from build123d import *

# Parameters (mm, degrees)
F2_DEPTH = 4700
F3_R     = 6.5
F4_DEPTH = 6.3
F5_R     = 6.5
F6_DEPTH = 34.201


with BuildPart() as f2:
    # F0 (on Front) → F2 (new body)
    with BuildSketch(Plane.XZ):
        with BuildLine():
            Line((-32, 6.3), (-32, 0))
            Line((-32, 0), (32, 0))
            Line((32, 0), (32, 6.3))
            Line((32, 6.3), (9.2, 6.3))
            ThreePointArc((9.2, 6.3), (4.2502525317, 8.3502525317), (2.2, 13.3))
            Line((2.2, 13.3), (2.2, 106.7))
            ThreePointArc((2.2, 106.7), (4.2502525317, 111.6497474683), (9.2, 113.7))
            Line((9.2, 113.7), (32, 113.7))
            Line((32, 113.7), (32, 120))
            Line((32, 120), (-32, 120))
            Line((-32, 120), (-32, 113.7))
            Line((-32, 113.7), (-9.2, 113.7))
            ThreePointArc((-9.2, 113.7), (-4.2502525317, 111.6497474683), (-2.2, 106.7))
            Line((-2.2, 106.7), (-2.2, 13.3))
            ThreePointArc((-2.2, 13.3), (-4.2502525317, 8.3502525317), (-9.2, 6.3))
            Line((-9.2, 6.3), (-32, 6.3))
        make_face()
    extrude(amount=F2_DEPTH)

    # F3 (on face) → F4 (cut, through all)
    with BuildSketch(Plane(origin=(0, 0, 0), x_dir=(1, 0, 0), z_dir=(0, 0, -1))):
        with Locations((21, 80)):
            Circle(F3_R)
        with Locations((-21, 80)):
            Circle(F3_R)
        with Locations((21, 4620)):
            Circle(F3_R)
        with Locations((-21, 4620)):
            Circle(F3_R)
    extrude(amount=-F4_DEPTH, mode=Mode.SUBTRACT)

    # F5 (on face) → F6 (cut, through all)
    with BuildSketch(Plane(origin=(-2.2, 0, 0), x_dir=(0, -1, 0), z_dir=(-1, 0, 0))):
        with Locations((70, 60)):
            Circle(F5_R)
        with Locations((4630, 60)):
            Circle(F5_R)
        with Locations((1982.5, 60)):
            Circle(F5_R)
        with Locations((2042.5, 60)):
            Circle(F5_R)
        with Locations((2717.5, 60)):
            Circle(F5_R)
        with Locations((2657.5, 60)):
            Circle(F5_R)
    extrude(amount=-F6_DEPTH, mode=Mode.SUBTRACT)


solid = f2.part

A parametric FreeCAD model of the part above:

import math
import FreeCAD as App
import Part
import Sketcher

doc = App.newDocument("Part")
params = doc.addObject("Spreadsheet::Sheet", "Params")
for row, (alias, value) in enumerate([
    ("sketch1_radius", "7 mm"),
    ("sketch1_width", "64 mm"),
    ("sketch1_width2", "22.8 mm"),
    ("sketch1_height", "6.3 mm"),
    ("sketch1_height2", "93.4 mm"),
    ("pad1_length", "4700 mm"),
    ("sketch2_diameter", "13 mm"),
    ("pocket1_length", "6.3 mm"),
    ("sketch3_diameter", "13 mm"),
], start=1):
    params.set(f"A{row}", alias)
    params.set(f"B{row}", "=" + value)
    params.setAlias(f"B{row}", alias)

body = doc.addObject("PartDesign::Body", "Body")

# Sketch on XZ plane
sketch1 = body.newObject("Sketcher::SketchObject", "Sketch")
sketch1.AttachmentSupport = (doc.getObject("XZ_Plane"), [""])
sketch1.MapMode = "FlatFace"
sketch1.addGeometry([
    Part.LineSegment(App.Vector(-32, 6, 0), App.Vector(-32, 0, 0)),  # 0
    Part.LineSegment(App.Vector(-32, 0, 0), App.Vector(32, 0, 0)),  # 1
    Part.LineSegment(App.Vector(32, 0, 0), App.Vector(32, 6, 0)),  # 2
    Part.LineSegment(App.Vector(32, 6, 0), App.Vector(9, 6, 0)),  # 3
    Part.ArcOfCircle(Part.Circle(App.Vector(9, 13, 0), App.Vector(0, 0, 1), 7), math.radians(180), math.radians(270)),  # 4
    Part.LineSegment(App.Vector(2, 13, 0), App.Vector(2, 107, 0)),  # 5
    Part.ArcOfCircle(Part.Circle(App.Vector(9, 107, 0), App.Vector(0, 0, 1), 7), math.radians(90), math.radians(180)),  # 6
    Part.LineSegment(App.Vector(9, 114, 0), App.Vector(32, 114, 0)),  # 7
    Part.LineSegment(App.Vector(32, 114, 0), App.Vector(32, 120, 0)),  # 8
    Part.LineSegment(App.Vector(32, 120, 0), App.Vector(-32, 120, 0)),  # 9
    Part.LineSegment(App.Vector(-32, 120, 0), App.Vector(-32, 114, 0)),  # 10
    Part.LineSegment(App.Vector(-32, 114, 0), App.Vector(-9, 114, 0)),  # 11
    Part.ArcOfCircle(Part.Circle(App.Vector(-9, 107, 0), App.Vector(0, 0, 1), 7), math.radians(0), math.radians(90)),  # 12
    Part.LineSegment(App.Vector(-2, 107, 0), App.Vector(-2, 13, 0)),  # 13
    Part.ArcOfCircle(Part.Circle(App.Vector(-9, 13, 0), App.Vector(0, 0, 1), 7), math.radians(-90), math.radians(0)),  # 14
    Part.LineSegment(App.Vector(-9, 6, 0), App.Vector(-32, 6, 0)),  # 15
], False)
sketch1.addConstraint([
    Sketcher.Constraint("Coincident", 0, 2, 1, 1),
    Sketcher.Constraint("Coincident", 1, 2, 2, 1),
    Sketcher.Constraint("Coincident", 2, 2, 3, 1),
    Sketcher.Constraint("Tangent", 3, 2, 4, 2),
    Sketcher.Constraint("Tangent", 4, 1, 5, 1),
    Sketcher.Constraint("Tangent", 5, 2, 6, 2),
    Sketcher.Constraint("Tangent", 6, 1, 7, 1),
    Sketcher.Constraint("Coincident", 7, 2, 8, 1),
    Sketcher.Constraint("Coincident", 8, 2, 9, 1),
    Sketcher.Constraint("Coincident", 9, 2, 10, 1),
    Sketcher.Constraint("Coincident", 10, 2, 11, 1),
    Sketcher.Constraint("Tangent", 11, 2, 12, 2),
    Sketcher.Constraint("Tangent", 12, 1, 13, 1),
    Sketcher.Constraint("Tangent", 13, 2, 14, 2),
    Sketcher.Constraint("Tangent", 14, 1, 15, 1),
    Sketcher.Constraint("Coincident", 15, 2, 0, 1),
    Sketcher.Constraint("Vertical", 0),
    Sketcher.Constraint("Horizontal", 1),
    Sketcher.Constraint("Vertical", 2),
    Sketcher.Constraint("Horizontal", 3),
    Sketcher.Constraint("Vertical", 5),
    Sketcher.Constraint("Horizontal", 7),
    Sketcher.Constraint("Vertical", 8),
    Sketcher.Constraint("Horizontal", 9),
    Sketcher.Constraint("Vertical", 10),
    Sketcher.Constraint("Horizontal", 11),
    Sketcher.Constraint("Vertical", 13),
    Sketcher.Constraint("Horizontal", 15),
    Sketcher.Constraint("Equal", 4, 6),
    Sketcher.Constraint("Equal", 6, 12),
    Sketcher.Constraint("Equal", 12, 14),
    Sketcher.Constraint("Symmetric", 0, 2, 1, 2, -1, 1),
    Sketcher.Constraint("Symmetric", 6, 3, 12, 3, -2),
    Sketcher.Constraint("Horizontal", 4, 3, 14, 3),
    Sketcher.Constraint("Vertical", 2, 2, 7, 2),
    Sketcher.Constraint("Vertical", 0, 2, 9, 2),
    Sketcher.Constraint("Equal", 2, 8),
    Sketcher.Constraint("Radius", 4, 7.0),
    Sketcher.Constraint("DistanceX", 1, 1, 1, 2, 64.0),
    Sketcher.Constraint("DistanceX", 3, 2, 3, 1, 22.8),
    Sketcher.Constraint("DistanceY", 0, 2, 0, 1, 6.3),
    Sketcher.Constraint("DistanceY", 5, 1, 5, 2, 93.4),
])
sketch1.setExpression("Constraints[37]", "Params.sketch1_radius")
sketch1.setExpression("Constraints[38]", "Params.sketch1_width")
sketch1.setExpression("Constraints[39]", "Params.sketch1_width2")
sketch1.setExpression("Constraints[40]", "Params.sketch1_height")
sketch1.setExpression("Constraints[41]", "Params.sketch1_height2")
pad1 = body.newObject("PartDesign::Pad", "Pad")
pad1.Profile = sketch1
pad1.setExpression("Length", "Params.pad1_length")

# Sketch on XY plane
sketch2 = body.newObject("Sketcher::SketchObject", "Sketch001")
sketch2.AttachmentSupport = (doc.getObject("XY_Plane"), [""])
sketch2.MapMode = "FlatFace"
sketch2.addGeometry([
    Part.Circle(App.Vector(21, -80, 0), App.Vector(0, 0, 1), 6),
    Part.Circle(App.Vector(-21, -80, 0), App.Vector(0, 0, 1), 6),
    Part.Circle(App.Vector(21, -4620, 0), App.Vector(0, 0, 1), 6),
    Part.Circle(App.Vector(-21, -4620, 0), App.Vector(0, 0, 1), 6),
], False)
sketch2.addConstraint([
    Sketcher.Constraint("Equal", 0, 1),
    Sketcher.Constraint("Equal", 1, 2),
    Sketcher.Constraint("Equal", 2, 3),
    Sketcher.Constraint("Symmetric", 0, 3, 1, 3, -2),
    Sketcher.Constraint("Symmetric", 2, 3, 3, 3, -2),
    Sketcher.Constraint("Vertical", 0, 3, 2, 3),
    Sketcher.Constraint("Diameter", 0, 13.0),
    Sketcher.Constraint("DistanceX", -1, 1, 0, 3, 21.0),
    Sketcher.Constraint("DistanceY", 0, 3, -1, 1, 80.0),
    Sketcher.Constraint("DistanceY", 2, 3, -1, 1, 4620.0),
])
sketch2.setExpression("Constraints[6]", "Params.sketch2_diameter")
pocket1 = body.newObject("PartDesign::Pocket", "Pocket")
pocket1.Profile = sketch2
pocket1.setExpression("Length", "Params.pocket1_length")
pocket1.Reversed = True

# Sketch on YZ plane
sketch3 = body.newObject("Sketcher::SketchObject", "Sketch002")
sketch3.AttachmentSupport = (doc.getObject("YZ_Plane"), [""])
sketch3.MapMode = "FlatFace"
sketch3.AttachmentOffset = App.Placement(App.Vector(0, 0, -2.2), App.Rotation())
sketch3.addGeometry([
    Part.Circle(App.Vector(-70, 60, 0), App.Vector(0, 0, 1), 6),  # 0
    Part.Circle(App.Vector(-4630, 60, 0), App.Vector(0, 0, 1), 6),  # 1
    Part.Circle(App.Vector(-1982, 60, 0), App.Vector(0, 0, 1), 6),  # 2
    Part.Circle(App.Vector(-2042, 60, 0), App.Vector(0, 0, 1), 6),  # 3
    Part.Circle(App.Vector(-2718, 60, 0), App.Vector(0, 0, 1), 6),  # 4
    Part.Circle(App.Vector(-2658, 60, 0), App.Vector(0, 0, 1), 6),  # 5
], False)
sketch3.addConstraint([
    Sketcher.Constraint("Equal", 0, 1),
    Sketcher.Constraint("Equal", 1, 2),
    Sketcher.Constraint("Equal", 2, 3),
    Sketcher.Constraint("Equal", 3, 4),
    Sketcher.Constraint("Equal", 4, 5),
    Sketcher.Constraint("Horizontal", 0, 3, 1, 3),
    Sketcher.Constraint("Horizontal", 1, 3, 2, 3),
    Sketcher.Constraint("Horizontal", 2, 3, 3, 3),
    Sketcher.Constraint("Horizontal", 3, 3, 4, 3),
    Sketcher.Constraint("Horizontal", 4, 3, 5, 3),
    Sketcher.Constraint("Diameter", 0, 13.0),
    Sketcher.Constraint("DistanceX", 0, 3, -1, 1, 70.0),
    Sketcher.Constraint("DistanceY", -1, 1, 0, 3, 60.0),
    Sketcher.Constraint("DistanceX", 1, 3, -1, 1, 4630.0),
    Sketcher.Constraint("DistanceX", 3, 3, 2, 3, 60.0),
    Sketcher.Constraint("DistanceX", 4, 3, 3, 3, 675.0),
    Sketcher.Constraint("DistanceX", 4, 3, 5, 3, 60.0),
    Sketcher.Constraint("DistanceX", 2, 3, -1, 1, 1982.5),
])
sketch3.setExpression("Constraints[10]", "Params.sketch3_diameter")
pocket2 = body.newObject("PartDesign::Pocket", "Pocket001")
pocket2.Profile = sketch3
pocket2.Type = "ThroughAll"
pocket2.Reversed = True

doc.recompute()
